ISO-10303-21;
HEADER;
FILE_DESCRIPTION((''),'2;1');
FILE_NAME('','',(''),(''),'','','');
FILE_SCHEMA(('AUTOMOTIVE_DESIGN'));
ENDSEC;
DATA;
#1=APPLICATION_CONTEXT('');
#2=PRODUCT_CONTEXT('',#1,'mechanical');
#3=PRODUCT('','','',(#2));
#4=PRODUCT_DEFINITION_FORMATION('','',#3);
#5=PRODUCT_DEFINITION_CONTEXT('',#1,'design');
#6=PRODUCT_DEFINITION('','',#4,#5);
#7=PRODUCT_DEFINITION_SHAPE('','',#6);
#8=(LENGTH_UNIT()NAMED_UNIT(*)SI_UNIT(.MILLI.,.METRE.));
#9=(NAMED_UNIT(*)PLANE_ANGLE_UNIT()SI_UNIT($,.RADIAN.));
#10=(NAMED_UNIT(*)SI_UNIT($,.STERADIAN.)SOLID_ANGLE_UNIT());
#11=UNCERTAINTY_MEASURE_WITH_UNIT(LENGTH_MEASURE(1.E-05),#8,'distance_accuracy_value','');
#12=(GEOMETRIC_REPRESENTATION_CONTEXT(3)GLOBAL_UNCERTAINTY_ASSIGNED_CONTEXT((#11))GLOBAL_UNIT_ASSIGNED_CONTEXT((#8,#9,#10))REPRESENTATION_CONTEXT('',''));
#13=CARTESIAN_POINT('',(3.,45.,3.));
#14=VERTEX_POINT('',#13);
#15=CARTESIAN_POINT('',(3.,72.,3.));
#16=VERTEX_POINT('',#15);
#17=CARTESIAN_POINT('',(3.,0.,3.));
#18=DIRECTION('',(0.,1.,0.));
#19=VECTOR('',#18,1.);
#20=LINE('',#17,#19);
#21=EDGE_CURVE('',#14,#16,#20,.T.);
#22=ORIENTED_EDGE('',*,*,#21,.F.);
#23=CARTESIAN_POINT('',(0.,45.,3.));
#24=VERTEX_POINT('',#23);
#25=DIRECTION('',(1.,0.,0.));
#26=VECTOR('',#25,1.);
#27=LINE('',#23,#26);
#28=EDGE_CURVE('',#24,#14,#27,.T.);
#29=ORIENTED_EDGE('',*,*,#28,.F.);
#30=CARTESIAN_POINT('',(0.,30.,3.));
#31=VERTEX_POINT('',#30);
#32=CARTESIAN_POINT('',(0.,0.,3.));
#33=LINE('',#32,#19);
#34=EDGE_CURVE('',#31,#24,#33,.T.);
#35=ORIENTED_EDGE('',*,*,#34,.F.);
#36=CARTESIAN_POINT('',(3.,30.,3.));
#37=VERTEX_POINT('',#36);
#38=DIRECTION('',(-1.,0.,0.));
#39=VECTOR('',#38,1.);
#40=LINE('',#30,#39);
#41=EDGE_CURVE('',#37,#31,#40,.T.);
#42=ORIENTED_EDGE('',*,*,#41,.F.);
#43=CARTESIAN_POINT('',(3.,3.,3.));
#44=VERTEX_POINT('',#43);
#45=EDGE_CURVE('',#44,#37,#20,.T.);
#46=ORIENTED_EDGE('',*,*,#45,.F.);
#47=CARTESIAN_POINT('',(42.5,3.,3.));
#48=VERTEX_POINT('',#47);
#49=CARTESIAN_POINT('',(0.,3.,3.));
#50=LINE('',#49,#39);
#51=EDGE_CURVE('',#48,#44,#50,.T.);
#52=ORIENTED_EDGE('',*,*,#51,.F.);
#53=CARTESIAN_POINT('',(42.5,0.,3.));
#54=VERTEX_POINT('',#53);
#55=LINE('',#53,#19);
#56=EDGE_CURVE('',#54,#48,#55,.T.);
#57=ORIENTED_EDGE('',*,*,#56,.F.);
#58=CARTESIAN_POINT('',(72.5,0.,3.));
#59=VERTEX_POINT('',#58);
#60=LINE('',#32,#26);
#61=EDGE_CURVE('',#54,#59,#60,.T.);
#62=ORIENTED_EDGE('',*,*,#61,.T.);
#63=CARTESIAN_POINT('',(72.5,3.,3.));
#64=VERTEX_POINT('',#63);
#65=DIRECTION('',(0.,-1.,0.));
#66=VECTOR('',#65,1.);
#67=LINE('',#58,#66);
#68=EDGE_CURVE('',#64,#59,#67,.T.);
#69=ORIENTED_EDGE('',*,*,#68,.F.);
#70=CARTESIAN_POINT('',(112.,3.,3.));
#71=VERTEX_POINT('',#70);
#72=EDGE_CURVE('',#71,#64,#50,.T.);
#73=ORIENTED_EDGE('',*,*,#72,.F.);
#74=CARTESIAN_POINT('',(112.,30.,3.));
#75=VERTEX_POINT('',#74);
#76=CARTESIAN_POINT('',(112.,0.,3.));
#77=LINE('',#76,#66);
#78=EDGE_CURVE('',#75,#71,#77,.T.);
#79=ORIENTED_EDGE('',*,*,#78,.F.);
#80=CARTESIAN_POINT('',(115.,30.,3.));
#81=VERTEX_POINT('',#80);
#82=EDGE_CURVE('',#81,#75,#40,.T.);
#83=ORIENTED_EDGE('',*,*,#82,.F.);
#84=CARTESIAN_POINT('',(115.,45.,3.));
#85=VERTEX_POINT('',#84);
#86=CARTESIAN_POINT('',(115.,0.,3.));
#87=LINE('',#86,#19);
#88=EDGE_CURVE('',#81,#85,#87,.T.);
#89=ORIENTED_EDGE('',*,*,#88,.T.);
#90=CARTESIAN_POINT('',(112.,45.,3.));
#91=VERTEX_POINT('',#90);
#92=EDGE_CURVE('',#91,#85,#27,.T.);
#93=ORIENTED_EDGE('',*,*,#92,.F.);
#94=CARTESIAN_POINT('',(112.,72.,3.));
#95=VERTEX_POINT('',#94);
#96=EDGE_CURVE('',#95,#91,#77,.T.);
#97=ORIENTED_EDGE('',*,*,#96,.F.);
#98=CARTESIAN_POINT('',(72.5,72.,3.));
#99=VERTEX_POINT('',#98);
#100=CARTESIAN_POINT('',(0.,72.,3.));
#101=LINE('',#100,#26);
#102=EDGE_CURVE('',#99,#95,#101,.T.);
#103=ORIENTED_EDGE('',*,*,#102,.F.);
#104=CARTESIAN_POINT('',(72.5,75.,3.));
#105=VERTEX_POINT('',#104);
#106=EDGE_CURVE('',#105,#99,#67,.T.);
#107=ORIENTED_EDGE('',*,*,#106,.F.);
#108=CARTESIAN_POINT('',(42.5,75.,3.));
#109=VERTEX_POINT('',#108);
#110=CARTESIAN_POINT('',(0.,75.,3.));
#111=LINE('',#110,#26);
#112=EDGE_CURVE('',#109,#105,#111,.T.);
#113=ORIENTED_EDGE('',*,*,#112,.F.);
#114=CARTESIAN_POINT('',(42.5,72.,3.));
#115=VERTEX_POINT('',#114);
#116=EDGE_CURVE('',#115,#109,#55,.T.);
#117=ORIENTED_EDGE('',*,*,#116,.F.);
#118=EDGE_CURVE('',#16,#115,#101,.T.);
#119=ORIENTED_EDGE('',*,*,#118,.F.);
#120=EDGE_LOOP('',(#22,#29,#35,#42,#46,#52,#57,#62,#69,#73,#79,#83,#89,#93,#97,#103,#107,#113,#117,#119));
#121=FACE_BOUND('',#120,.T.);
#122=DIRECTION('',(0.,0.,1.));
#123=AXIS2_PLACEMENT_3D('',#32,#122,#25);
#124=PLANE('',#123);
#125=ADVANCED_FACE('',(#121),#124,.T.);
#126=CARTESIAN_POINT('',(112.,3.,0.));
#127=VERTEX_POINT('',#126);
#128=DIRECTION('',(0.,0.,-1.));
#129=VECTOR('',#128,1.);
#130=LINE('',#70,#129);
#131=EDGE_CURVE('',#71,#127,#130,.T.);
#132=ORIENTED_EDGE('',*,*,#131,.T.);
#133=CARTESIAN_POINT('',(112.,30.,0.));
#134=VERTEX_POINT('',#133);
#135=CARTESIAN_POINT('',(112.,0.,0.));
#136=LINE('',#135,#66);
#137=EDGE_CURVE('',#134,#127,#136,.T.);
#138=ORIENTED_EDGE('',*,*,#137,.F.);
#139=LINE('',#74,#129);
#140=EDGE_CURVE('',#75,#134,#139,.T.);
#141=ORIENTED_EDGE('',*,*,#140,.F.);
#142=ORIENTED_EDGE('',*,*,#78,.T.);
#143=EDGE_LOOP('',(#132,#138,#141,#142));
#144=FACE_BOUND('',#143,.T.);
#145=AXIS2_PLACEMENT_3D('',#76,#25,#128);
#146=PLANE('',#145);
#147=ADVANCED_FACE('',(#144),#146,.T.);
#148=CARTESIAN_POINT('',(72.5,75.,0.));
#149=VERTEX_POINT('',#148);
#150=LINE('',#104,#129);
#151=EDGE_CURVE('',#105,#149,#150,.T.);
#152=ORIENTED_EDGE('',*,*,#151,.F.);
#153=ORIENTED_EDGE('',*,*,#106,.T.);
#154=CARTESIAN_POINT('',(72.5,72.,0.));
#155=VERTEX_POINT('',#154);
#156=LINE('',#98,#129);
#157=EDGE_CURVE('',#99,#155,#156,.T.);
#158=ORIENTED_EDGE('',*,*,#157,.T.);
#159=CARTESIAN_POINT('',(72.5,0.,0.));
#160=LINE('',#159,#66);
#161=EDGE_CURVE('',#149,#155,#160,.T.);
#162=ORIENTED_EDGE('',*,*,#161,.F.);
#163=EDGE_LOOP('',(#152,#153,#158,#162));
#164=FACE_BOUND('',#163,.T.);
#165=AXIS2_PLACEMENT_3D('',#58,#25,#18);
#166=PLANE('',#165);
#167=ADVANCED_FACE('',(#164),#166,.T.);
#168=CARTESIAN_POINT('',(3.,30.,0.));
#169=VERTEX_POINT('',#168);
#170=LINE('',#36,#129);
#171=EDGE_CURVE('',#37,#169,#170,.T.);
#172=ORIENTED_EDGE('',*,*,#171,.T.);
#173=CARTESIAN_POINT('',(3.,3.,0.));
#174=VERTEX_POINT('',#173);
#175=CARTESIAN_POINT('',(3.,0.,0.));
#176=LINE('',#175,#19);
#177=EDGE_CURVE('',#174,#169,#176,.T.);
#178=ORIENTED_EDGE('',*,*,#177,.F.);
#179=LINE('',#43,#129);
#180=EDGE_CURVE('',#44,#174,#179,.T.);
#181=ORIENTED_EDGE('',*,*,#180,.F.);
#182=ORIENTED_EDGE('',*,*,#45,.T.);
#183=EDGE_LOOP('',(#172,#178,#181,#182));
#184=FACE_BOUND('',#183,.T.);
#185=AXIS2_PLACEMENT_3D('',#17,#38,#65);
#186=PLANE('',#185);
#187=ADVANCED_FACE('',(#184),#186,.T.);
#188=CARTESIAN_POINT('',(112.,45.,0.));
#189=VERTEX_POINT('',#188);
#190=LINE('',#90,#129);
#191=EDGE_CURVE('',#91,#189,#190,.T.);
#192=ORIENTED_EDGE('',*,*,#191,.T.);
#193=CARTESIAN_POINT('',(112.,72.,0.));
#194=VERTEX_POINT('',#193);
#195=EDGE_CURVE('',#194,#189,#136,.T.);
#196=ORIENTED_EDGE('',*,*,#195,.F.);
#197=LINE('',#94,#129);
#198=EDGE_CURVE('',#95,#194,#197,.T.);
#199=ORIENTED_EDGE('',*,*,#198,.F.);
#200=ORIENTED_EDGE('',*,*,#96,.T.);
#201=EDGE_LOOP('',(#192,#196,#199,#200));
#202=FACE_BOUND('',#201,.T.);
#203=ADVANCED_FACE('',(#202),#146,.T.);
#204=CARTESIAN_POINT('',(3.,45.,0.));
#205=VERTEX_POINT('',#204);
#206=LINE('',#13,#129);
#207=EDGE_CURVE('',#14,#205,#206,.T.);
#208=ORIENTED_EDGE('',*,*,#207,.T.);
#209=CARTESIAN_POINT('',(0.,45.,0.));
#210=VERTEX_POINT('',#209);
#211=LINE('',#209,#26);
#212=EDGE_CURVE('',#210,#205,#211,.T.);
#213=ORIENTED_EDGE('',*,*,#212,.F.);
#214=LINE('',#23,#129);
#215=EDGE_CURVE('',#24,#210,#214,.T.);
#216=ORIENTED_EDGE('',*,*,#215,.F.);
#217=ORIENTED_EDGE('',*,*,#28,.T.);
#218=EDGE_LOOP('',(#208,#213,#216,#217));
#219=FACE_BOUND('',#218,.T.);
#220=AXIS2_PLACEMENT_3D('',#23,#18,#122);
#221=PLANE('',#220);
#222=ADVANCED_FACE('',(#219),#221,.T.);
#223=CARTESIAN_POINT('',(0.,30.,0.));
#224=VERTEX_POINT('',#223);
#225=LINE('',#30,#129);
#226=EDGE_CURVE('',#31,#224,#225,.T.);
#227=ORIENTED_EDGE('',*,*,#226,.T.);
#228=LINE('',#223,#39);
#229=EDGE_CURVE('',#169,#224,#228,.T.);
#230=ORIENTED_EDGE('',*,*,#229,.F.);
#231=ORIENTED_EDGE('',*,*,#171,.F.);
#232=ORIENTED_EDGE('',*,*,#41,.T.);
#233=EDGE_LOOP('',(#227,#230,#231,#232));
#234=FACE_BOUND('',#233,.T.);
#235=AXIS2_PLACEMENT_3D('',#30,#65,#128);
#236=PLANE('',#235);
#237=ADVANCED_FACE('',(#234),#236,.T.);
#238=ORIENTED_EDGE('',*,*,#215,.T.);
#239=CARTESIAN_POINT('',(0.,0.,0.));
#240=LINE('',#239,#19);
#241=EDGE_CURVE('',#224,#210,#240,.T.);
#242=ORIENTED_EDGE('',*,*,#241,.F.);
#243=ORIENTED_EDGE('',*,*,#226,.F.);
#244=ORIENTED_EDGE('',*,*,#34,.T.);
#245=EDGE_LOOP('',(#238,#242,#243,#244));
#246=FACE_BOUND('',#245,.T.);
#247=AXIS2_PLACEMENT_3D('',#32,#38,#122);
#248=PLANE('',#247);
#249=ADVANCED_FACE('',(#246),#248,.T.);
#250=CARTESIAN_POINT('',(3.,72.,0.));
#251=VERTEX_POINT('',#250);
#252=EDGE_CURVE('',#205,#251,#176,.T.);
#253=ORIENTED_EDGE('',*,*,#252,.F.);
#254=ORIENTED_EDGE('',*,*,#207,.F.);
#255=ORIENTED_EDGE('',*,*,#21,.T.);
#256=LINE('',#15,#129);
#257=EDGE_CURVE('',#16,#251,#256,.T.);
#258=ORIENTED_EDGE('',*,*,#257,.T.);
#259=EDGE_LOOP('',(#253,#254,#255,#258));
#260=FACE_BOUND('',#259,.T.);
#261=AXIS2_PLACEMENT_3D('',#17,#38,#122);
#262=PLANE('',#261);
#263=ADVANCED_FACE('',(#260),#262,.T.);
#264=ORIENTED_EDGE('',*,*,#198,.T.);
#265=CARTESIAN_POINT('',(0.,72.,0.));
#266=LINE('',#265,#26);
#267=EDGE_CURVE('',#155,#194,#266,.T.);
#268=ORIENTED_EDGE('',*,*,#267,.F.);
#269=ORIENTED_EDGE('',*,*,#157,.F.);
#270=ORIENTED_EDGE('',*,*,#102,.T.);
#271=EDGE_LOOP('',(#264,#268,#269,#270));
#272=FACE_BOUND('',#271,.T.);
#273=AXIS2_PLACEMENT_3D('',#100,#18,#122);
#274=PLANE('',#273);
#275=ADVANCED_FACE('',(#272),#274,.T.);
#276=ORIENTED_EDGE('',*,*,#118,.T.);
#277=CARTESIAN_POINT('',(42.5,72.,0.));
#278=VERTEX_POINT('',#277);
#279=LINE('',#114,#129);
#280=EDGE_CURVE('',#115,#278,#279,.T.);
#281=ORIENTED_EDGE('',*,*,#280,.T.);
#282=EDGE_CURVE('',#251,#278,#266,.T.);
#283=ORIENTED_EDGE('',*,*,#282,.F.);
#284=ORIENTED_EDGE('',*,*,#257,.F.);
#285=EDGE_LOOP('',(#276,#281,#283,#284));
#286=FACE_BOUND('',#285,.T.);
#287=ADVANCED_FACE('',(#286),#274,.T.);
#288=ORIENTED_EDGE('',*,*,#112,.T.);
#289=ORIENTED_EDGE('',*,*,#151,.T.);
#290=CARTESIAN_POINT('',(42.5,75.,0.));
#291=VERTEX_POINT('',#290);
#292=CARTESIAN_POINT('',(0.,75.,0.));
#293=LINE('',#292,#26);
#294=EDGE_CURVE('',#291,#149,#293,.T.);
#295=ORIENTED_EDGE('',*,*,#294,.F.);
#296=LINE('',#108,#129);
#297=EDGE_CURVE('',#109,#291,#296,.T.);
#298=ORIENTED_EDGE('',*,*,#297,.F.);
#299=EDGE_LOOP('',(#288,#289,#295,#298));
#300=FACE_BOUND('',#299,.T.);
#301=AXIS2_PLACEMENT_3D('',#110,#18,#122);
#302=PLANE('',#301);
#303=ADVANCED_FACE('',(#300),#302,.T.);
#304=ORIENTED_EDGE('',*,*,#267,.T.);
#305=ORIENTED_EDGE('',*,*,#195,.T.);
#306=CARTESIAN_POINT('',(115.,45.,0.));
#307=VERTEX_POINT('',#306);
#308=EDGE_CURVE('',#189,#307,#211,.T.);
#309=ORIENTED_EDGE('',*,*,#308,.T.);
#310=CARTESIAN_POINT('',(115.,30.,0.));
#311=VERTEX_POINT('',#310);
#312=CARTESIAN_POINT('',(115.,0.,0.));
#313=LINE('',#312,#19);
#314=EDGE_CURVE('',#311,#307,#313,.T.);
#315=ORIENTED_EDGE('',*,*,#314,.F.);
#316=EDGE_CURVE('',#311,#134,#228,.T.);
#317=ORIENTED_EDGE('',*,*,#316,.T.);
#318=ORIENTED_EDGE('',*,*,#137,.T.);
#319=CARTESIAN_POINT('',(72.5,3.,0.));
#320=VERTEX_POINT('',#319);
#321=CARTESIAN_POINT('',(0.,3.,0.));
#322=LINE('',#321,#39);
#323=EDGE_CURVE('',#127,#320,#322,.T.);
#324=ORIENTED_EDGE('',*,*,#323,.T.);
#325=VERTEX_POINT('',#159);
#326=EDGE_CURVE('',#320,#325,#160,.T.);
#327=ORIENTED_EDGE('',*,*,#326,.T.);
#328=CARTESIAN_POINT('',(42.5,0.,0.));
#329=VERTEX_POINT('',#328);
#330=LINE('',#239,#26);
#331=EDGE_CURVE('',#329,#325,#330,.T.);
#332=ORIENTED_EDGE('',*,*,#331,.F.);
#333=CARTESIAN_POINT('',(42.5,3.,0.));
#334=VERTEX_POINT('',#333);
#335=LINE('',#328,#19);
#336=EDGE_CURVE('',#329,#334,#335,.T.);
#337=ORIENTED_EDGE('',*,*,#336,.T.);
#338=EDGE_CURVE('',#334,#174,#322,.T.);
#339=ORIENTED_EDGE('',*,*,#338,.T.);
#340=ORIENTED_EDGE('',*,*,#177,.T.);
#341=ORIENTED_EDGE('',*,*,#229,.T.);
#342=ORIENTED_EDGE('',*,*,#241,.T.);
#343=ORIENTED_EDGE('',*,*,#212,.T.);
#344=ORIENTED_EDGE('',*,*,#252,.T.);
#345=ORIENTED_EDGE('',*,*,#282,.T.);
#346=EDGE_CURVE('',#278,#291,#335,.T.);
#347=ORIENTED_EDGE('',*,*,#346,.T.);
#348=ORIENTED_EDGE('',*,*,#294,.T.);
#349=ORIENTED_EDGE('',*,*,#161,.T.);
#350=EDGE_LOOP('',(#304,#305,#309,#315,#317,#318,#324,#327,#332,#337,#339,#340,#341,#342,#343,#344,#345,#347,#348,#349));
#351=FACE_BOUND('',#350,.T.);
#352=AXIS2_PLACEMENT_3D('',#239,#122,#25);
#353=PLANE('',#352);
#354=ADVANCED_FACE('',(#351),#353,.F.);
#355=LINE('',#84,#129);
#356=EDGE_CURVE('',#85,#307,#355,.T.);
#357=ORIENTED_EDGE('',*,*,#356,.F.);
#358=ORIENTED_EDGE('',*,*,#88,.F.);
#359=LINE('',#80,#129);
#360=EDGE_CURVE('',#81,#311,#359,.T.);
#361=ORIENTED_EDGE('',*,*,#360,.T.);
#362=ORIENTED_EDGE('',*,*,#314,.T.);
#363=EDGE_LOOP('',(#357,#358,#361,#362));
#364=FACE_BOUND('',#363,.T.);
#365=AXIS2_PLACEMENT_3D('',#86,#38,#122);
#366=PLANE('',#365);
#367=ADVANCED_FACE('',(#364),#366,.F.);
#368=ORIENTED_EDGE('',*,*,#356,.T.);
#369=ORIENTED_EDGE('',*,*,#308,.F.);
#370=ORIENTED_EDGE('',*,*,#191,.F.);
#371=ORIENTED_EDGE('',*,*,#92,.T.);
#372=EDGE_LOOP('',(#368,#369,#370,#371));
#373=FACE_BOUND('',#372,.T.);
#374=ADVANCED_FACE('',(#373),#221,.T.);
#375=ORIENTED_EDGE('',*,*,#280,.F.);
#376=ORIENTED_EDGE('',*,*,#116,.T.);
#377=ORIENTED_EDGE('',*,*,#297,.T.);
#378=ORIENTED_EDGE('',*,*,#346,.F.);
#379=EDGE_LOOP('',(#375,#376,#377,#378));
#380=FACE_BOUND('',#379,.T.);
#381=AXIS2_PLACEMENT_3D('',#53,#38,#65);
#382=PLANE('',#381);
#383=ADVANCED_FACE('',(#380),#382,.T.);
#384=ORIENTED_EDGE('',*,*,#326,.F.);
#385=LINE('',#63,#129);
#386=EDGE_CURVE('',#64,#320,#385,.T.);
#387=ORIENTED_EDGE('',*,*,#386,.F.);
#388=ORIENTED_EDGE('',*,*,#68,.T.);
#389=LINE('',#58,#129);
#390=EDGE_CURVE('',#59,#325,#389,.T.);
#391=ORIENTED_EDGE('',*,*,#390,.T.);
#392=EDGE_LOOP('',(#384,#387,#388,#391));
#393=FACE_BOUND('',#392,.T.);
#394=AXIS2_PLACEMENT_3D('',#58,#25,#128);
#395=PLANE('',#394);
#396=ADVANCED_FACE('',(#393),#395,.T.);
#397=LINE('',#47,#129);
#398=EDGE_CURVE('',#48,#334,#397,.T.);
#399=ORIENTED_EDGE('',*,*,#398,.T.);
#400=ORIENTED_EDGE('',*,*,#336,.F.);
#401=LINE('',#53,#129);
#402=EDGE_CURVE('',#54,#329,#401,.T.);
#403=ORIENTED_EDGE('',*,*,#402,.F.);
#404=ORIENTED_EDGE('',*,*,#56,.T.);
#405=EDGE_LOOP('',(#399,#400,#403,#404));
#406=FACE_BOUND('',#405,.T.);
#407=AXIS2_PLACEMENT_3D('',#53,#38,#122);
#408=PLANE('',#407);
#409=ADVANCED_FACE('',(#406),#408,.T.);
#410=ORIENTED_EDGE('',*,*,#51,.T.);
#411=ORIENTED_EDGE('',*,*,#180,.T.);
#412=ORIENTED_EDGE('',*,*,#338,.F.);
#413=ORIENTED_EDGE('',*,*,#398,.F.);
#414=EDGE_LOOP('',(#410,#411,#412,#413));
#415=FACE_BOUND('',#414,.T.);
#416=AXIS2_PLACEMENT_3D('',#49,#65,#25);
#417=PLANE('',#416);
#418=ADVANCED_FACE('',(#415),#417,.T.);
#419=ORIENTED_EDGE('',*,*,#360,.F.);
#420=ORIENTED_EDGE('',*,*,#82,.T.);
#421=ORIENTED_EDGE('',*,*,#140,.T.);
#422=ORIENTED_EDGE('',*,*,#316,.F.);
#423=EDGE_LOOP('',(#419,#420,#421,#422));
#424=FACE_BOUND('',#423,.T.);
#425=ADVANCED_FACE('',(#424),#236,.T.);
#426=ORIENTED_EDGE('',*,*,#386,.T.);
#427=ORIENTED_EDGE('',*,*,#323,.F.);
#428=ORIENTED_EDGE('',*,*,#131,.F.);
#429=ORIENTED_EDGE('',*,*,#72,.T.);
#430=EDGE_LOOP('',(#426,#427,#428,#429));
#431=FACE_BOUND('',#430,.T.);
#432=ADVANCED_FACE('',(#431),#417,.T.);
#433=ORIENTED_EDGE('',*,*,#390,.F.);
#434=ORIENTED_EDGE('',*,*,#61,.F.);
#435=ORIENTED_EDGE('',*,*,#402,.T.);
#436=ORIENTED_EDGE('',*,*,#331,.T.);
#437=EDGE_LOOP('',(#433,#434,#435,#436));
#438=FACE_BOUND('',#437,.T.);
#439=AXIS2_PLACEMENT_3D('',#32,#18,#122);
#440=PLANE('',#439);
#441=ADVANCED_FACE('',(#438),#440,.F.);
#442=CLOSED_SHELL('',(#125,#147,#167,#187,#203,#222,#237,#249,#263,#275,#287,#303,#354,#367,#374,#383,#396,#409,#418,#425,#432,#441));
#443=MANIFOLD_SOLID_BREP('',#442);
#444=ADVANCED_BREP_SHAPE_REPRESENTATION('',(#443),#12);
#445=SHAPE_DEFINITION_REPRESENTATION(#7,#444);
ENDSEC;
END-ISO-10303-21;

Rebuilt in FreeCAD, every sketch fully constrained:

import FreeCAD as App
import Part
import Sketcher

V = App.Vector


def add_polygon(sketch, points):
    """Adds a closed chain of lines whose ends are joined by coincident constraints."""
    first, n = sketch.GeometryCount, len(points)
    for a, b in zip(points, points[1:] + points[:1]):
        sketch.addGeometry(Part.LineSegment(App.Vector(*a, 0), App.Vector(*b, 0)), False)
    for i in range(n):
        sketch.addConstraint(Sketcher.Constraint("Coincident", first + i, 2, first + (i + 1) % n, 1))

doc = App.newDocument("Part")
body = doc.addObject("PartDesign::Body", "Body")

sketch1 = doc.addObject("Sketcher::SketchObject", "Sketch")
body.addObject(sketch1)
sketch1.AttachmentSupport = (doc.XY_Plane, [""])
sketch1.MapMode = "FlatFace"
add_polygon(sketch1, [(3, 45), (0, 45), (0, 30), (3, 30), (3, 3), (42.5, 3), (42.5, 0), (72.5, 0), (72.5, 3), (112, 3), (112, 30), (115, 30), (115, 45), (112, 45), (112, 72), (72.5, 72), (72.5, 75), (42.5, 75), (42.5, 72), (3, 72)])
sketch1.addConstraint([
    Sketcher.Constraint("Horizontal", 0),
    Sketcher.Constraint("Vertical", 1),
    Sketcher.Constraint("Horizontal", 2),
    Sketcher.Constraint("Vertical", 3),
    Sketcher.Constraint("Horizontal", 4),
    Sketcher.Constraint("Vertical", 5),
    Sketcher.Constraint("Horizontal", 6),
    Sketcher.Constraint("Vertical", 7),
    Sketcher.Constraint("Horizontal", 8),
    Sketcher.Constraint("Vertical", 9),
    Sketcher.Constraint("Horizontal", 10),
    Sketcher.Constraint("Vertical", 11),
    Sketcher.Constraint("Horizontal", 12),
    Sketcher.Constraint("Vertical", 13),
    Sketcher.Constraint("Horizontal", 14),
    Sketcher.Constraint("Vertical", 15),
    Sketcher.Constraint("Horizontal", 16),
    Sketcher.Constraint("Vertical", 17),
    Sketcher.Constraint("Horizontal", 18),
    Sketcher.Constraint("Vertical", 19),
    Sketcher.Constraint("PointOnObject", 0, 2, -2),
    Sketcher.Constraint("PointOnObject", 5, 2, -1),
    Sketcher.Constraint("Horizontal", 4, 2, 7, 2),
    Sketcher.Constraint("Horizontal", 2, 2, 9, 2),
    Sketcher.Constraint("Horizontal", 0, 2, 11, 2),
    Sketcher.Constraint("Horizontal", 14, 2, 17, 2),
    Sketcher.Constraint("Vertical", 9, 2, 12, 2),
    Sketcher.Constraint("Vertical", 7, 2, 14, 2),
    Sketcher.Constraint("Vertical", 5, 2, 16, 2),
    Sketcher.Constraint("Vertical", 3, 2, 18, 2),
    Sketcher.Constraint("Equal", 4, 8),
    Sketcher.Constraint("Equal", 2, 10),
    Sketcher.Constraint("Equal", 12, 5),
    Sketcher.Constraint("Equal", 9, 13),
    Sketcher.Constraint("Equal", 7, 15),
    Sketcher.Constraint("DistanceX", 0, 2, 0, 1, 3.0),
    Sketcher.Constraint("DistanceX", 6, 1, 6, 2, 30.0),
    Sketcher.Constraint("DistanceY", 1, 2, 1, 1, 15.0),
    Sketcher.Constraint("DistanceY", 3, 2, 3, 1, 27.0),
    Sketcher.Constraint("DistanceX", 4, 1, 4, 2, 39.5),
])
pad1 = doc.addObject("PartDesign::Pad", "Pad")
body.addObject(pad1)
pad1.Profile = sketch1
pad1.Length = 3

doc.recompute()
